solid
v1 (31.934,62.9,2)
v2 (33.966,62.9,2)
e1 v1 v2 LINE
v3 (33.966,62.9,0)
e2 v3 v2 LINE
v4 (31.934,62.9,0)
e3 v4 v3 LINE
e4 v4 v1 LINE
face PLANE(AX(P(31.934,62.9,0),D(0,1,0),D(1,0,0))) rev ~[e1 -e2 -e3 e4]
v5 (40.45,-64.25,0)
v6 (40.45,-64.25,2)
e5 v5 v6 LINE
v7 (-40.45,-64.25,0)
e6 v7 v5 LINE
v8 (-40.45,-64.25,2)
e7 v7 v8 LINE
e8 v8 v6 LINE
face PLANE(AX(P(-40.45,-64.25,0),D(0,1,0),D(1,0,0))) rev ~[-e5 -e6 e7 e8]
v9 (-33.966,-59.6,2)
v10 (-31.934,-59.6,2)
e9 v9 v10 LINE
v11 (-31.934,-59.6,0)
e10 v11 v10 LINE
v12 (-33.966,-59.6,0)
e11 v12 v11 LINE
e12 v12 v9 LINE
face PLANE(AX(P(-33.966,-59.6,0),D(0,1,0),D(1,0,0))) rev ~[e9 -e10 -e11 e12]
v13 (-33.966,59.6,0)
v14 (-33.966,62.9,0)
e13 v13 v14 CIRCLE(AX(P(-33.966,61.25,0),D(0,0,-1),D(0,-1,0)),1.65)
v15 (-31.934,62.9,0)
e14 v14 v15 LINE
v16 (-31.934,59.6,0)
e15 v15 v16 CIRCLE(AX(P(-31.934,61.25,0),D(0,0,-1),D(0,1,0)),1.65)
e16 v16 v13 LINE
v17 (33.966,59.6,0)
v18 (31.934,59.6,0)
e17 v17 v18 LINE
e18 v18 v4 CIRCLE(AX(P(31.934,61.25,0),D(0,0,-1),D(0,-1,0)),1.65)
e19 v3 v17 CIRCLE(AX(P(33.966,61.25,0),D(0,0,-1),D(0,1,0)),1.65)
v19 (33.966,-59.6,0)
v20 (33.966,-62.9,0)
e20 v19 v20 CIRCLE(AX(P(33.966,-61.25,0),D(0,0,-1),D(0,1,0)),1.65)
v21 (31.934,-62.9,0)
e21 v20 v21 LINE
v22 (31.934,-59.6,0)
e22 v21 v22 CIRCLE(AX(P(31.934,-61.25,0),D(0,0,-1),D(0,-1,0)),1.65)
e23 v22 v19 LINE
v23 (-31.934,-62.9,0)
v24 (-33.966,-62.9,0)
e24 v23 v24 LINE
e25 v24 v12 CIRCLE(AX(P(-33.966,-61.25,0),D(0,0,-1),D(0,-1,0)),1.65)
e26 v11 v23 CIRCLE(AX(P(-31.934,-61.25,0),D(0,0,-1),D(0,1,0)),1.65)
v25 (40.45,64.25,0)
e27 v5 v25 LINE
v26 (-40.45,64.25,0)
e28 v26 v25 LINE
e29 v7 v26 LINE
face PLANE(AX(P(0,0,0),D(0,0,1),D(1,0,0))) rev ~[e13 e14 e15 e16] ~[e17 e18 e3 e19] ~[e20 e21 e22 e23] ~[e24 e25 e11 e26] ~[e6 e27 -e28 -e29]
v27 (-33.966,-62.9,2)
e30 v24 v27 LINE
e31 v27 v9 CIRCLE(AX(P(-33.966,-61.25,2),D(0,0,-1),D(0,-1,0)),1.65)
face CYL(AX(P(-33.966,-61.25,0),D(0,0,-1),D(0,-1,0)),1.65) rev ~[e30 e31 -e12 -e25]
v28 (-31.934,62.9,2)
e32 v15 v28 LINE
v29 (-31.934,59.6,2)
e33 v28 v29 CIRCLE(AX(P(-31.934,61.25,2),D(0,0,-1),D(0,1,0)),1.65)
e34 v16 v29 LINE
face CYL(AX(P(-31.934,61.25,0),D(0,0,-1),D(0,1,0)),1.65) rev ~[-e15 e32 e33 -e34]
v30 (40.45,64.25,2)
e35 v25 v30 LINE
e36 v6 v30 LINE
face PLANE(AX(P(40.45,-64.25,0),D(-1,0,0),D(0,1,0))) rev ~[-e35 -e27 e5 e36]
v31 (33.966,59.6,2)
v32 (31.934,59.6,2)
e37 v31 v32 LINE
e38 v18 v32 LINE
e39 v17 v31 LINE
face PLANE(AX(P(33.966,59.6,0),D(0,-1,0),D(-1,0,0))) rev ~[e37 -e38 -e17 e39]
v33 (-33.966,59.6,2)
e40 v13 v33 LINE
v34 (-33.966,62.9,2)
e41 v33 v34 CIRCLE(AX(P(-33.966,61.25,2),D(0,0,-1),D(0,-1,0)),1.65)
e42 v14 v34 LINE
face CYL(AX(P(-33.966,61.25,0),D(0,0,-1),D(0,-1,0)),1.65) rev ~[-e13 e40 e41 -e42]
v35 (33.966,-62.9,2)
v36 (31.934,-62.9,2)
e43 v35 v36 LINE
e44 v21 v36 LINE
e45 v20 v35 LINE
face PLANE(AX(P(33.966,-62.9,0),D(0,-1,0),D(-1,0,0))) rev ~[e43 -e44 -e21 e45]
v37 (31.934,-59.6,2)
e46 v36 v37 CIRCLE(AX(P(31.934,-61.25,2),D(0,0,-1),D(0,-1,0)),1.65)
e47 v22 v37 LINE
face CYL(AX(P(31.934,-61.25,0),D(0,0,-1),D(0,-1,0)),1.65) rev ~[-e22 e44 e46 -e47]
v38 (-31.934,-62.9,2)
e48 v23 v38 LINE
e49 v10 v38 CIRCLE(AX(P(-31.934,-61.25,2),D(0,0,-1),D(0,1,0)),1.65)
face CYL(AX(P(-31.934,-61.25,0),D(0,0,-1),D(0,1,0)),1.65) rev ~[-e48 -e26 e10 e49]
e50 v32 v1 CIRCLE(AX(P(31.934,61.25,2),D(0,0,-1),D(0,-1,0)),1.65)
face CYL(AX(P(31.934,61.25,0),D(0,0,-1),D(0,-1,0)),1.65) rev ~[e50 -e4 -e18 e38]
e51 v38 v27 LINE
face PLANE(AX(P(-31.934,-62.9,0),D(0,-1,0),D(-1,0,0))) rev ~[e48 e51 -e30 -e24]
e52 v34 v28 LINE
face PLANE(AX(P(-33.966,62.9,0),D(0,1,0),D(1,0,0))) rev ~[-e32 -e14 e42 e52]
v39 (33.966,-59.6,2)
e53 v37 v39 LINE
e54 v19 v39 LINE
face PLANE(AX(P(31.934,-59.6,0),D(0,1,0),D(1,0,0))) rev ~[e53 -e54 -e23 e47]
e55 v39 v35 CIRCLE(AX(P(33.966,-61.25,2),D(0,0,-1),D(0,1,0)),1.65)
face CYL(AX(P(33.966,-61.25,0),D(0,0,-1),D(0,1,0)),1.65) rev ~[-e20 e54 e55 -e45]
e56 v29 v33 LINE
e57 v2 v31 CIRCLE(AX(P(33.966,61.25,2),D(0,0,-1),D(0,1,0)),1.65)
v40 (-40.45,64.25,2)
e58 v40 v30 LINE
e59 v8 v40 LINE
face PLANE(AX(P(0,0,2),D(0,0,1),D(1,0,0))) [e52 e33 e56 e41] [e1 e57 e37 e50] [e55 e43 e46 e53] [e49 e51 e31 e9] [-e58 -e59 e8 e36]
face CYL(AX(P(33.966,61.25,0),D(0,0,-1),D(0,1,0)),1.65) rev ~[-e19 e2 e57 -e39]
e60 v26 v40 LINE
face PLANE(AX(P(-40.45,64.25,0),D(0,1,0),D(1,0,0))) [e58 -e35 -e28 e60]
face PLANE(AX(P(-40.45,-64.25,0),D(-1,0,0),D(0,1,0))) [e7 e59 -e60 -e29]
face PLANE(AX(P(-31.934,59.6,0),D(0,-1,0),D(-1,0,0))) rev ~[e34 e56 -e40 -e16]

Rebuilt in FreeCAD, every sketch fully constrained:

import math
import FreeCAD as App
import Part
import Sketcher

V = App.Vector
Q = App.Units.Quantity


def add_polygon(sketch, points):
    """Adds a closed chain of lines whose ends are joined by coincident constraints."""
    first, n = sketch.GeometryCount, len(points)
    for a, b in zip(points, points[1:] + points[:1]):
        sketch.addGeometry(Part.LineSegment(App.Vector(*a, 0), App.Vector(*b, 0)), False)
    for i in range(n):
        sketch.addConstraint(Sketcher.Constraint("Coincident", first + i, 2, first + (i + 1) % n, 1))

doc = App.newDocument("Part")
body = doc.addObject("PartDesign::Body", "Body")

# Sketch on XY plane
sketch1 = body.newObject("Sketcher::SketchObject", "Sketch")
sketch1.AttachmentSupport = (doc.getObject("XY_Plane"), [""])
sketch1.MapMode = "FlatFace"
add_polygon(sketch1, [(-40.5, 64.2), (-40.5, -64.2), (40.5, -64.2), (40.5, 64.2)])  # lines 0-3
sketch1.addGeometry(Part.ArcOfCircle(Part.Circle(V(-34, -61.2, 0), V(0, 0, 1), 1.6), math.radians(90), math.radians(270)), False)  # 4
sketch1.addGeometry(Part.LineSegment(V(-34, -59.6, 0), V(-31.9, -59.6, 0)), False)  # 5
sketch1.addGeometry(Part.ArcOfCircle(Part.Circle(V(-31.9, -61.2, 0), V(0, 0, 1), 1.6), math.radians(-90), math.radians(90)), False)  # 6
sketch1.addGeometry(Part.LineSegment(V(-31.9, -62.9, 0), V(-34, -62.9, 0)), False)  # 7
sketch1.addGeometry(Part.ArcOfCircle(Part.Circle(V(31.9, -61.2, 0), V(0, 0, 1), 1.6), math.radians(90), math.radians(270)), False)  # 8
sketch1.addGeometry(Part.LineSegment(V(31.9, -59.6, 0), V(34, -59.6, 0)), False)  # 9
sketch1.addGeometry(Part.ArcOfCircle(Part.Circle(V(34, -61.2, 0), V(0, 0, 1), 1.6), math.radians(-90), math.radians(90)), False)  # 10
sketch1.addGeometry(Part.LineSegment(V(34, -62.9, 0), V(31.9, -62.9, 0)), False)  # 11
sketch1.addGeometry(Part.ArcOfCircle(Part.Circle(V(-34, 61.2, 0), V(0, 0, 1), 1.6), math.radians(90), math.radians(270)), False)  # 12
sketch1.addGeometry(Part.LineSegment(V(-34, 62.9, 0), V(-31.9, 62.9, 0)), False)  # 13
sketch1.addGeometry(Part.ArcOfCircle(Part.Circle(V(-31.9, 61.2, 0), V(0, 0, 1), 1.6), math.radians(-90), math.radians(90)), False)  # 14
sketch1.addGeometry(Part.LineSegment(V(-31.9, 59.6, 0), V(-34, 59.6, 0)), False)  # 15
sketch1.addGeometry(Part.ArcOfCircle(Part.Circle(V(31.9, 61.2, 0), V(0, 0, 1), 1.6), math.radians(90), math.radians(270)), False)  # 16
sketch1.addGeometry(Part.LineSegment(V(31.9, 62.9, 0), V(34, 62.9, 0)), False)  # 17
sketch1.addGeometry(Part.ArcOfCircle(Part.Circle(V(34, 61.2, 0), V(0, 0, 1), 1.6), math.radians(-90), math.radians(90)), False)  # 18
sketch1.addGeometry(Part.LineSegment(V(34, 59.6, 0), V(31.9, 59.6, 0)), False)  # 19
sketch1.addConstraint([
    Sketcher.Constraint("Tangent", 4, 1, 5, 1),
    Sketcher.Constraint("Tangent", 5, 2, 6, 2),
    Sketcher.Constraint("Tangent", 6, 1, 7, 1),
    Sketcher.Constraint("Tangent", 7, 2, 4, 2),
    Sketcher.Constraint("Tangent", 8, 1, 9, 1),
    Sketcher.Constraint("Tangent", 9, 2, 10, 2),
    Sketcher.Constraint("Tangent", 10, 1, 11, 1),
    Sketcher.Constraint("Tangent", 11, 2, 8, 2),
    Sketcher.Constraint("Tangent", 12, 1, 13, 1),
    Sketcher.Constraint("Tangent", 13, 2, 14, 2),
    Sketcher.Constraint("Tangent", 14, 1, 15, 1),
    Sketcher.Constraint("Tangent", 15, 2, 12, 2),
    Sketcher.Constraint("Tangent", 16, 1, 17, 1),
    Sketcher.Constraint("Tangent", 17, 2, 18, 2),
    Sketcher.Constraint("Tangent", 18, 1, 19, 1),
    Sketcher.Constraint("Tangent", 19, 2, 16, 2),
    Sketcher.Constraint("Vertical", 0),
    Sketcher.Constraint("Horizontal", 1),
    Sketcher.Constraint("Vertical", 2),
    Sketcher.Constraint("Horizontal", 3),
    Sketcher.Constraint("Horizontal", 5),
    Sketcher.Constraint("Horizontal", 7),
    Sketcher.Constraint("Horizontal", 9),
    Sketcher.Constraint("Horizontal", 11),
    Sketcher.Constraint("Horizontal", 13),
    Sketcher.Constraint("Horizontal", 15),
    Sketcher.Constraint("Horizontal", 17),
    Sketcher.Constraint("Horizontal", 19),
    Sketcher.Constraint("Equal", 6, 8),
    Sketcher.Constraint("Equal", 10, 12),
    Sketcher.Constraint("Equal", 14, 16),
    Sketcher.Constraint("Symmetric", 10, 3, 12, 3, -1, 1),
    Sketcher.Constraint("Symmetric", 6, 3, 16, 3, -1, 1),
    Sketcher.Constraint("Symmetric", 0, 2, 2, 2, -1, 1),
    Sketcher.Constraint("Symmetric", 6, 3, 8, 3, -2),
    Sketcher.Constraint("Vertical", 4, 3, 12, 3),
    Sketcher.Constraint("Vertical", 6, 3, 14, 3),
    Sketcher.Constraint("Vertical", 10, 3, 18, 3),
    Sketcher.Constraint("Radius", 4, Q("1.65 mm")),
    Sketcher.Constraint("DistanceX", 1, 1, 1, 2, Q("80.9 mm")),
    Sketcher.Constraint("DistanceY", 0, 2, 0, 1, Q("128.5 mm")),
    Sketcher.Constraint("DistanceY", 0, 2, 4, 3, Q("3 mm")),
    Sketcher.Constraint("DistanceX", 4, 3, 8, 3, Q("65.9 mm")),
    Sketcher.Constraint("DistanceX", 5, 1, 5, 2, Q("2.032 mm")),
])
pad1 = body.newObject("PartDesign::Pad", "Pad")
pad1.Profile = sketch1
pad1.Length = 2

doc.recompute()
